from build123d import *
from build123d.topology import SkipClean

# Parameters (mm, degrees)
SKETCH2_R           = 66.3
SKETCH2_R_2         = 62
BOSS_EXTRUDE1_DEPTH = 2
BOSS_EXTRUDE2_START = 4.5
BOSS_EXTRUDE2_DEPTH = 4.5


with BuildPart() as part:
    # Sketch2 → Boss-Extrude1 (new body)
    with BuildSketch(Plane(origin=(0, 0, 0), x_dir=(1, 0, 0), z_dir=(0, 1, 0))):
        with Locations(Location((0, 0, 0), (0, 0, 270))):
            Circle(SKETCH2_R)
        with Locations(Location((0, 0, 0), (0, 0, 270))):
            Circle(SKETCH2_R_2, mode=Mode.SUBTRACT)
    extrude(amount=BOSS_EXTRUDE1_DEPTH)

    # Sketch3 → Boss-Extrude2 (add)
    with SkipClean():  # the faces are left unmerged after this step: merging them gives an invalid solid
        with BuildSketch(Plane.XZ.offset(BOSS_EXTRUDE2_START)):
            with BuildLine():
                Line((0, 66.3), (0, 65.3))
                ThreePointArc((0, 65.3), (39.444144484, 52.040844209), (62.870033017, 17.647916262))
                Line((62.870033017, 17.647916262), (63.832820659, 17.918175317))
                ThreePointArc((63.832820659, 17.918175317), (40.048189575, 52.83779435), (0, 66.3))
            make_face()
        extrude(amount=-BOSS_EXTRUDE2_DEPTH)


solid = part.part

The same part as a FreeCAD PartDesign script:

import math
import FreeCAD as App
import Part
import Sketcher
from FreeCAD import Vector
Q = App.Units.Quantity

doc = App.newDocument("Part")
body = doc.addObject("PartDesign::Body", "Body")

# Sketch on XZ plane
sketch1 = doc.addObject("Sketcher::SketchObject", "Sketch")
body.addObject(sketch1)
sketch1.AttachmentSupport = (doc.XZ_Plane, [""])
sketch1.MapMode = "FlatFace"
sketch1.addGeometry(Part.Circle(Vector(0, 0, 0), Vector(0, 0, 1), 66.3), False)
sketch1.addGeometry(Part.Circle(Vector(0, 0, 0), Vector(0, 0, 1), 62), False)
sketch1.addConstraint(Sketcher.Constraint("Coincident", 0, 3, -1, 1))
sketch1.addConstraint(Sketcher.Constraint("Coincident", 1, 3, -1, 1))
sketch1.addConstraint(Sketcher.Constraint("Diameter", 1, Q("124 mm")))
sketch1.addConstraint(Sketcher.Constraint("Diameter", 0, Q("132.6 mm")))
pad1 = doc.addObject("PartDesign::Pad", "Pad")
body.addObject(pad1)
pad1.Profile = sketch1
pad1.Length = 2
pad1.Reversed = True

# Sketch on XZ plane
sketch2 = doc.addObject("Sketcher::SketchObject", "Sketch001")
body.addObject(sketch2)
sketch2.AttachmentSupport = (doc.XZ_Plane, [""])
sketch2.MapMode = "FlatFace"
sketch2.AttachmentOffset = App.Placement(Vector(0, 0, 4.5), App.Rotation())
sketch2.addGeometry(Part.LineSegment(Vector(0, 66.3, 0), Vector(0, 65.3, 0)), False)
sketch2.addGeometry(Part.ArcOfCircle(Part.Circle(Vector(0, 0, 0), Vector(0, 0, 1), 65.3), math.radians(15.679683), math.radians(90)), False)
sketch2.addGeometry(Part.LineSegment(Vector(62.870033, 17.647916, 0), Vector(63.832821, 17.918175, 0)), False)
sketch2.addGeometry(Part.ArcOfCircle(Part.Circle(Vector(0, 0, 0), Vector(0, 0, 1), 66.3), math.radians(15.679683), math.radians(90)), False)
sketch2.addConstraint(Sketcher.Constraint("Coincident", 0, 2, 1, 2))
sketch2.addConstraint(Sketcher.Constraint("Coincident", 1, 1, 2, 1))
sketch2.addConstraint(Sketcher.Constraint("Coincident", 2, 2, 3, 1))
sketch2.addConstraint(Sketcher.Constraint("Coincident", 3, 2, 0, 1))
sketch2.addConstraint(Sketcher.Constraint("Vertical", 0))
sketch2.addConstraint(Sketcher.Constraint("Coincident", 1, 3, -1, 1))
sketch2.addConstraint(Sketcher.Constraint("Coincident", 3, 3, -1, 1))
sketch2.addConstraint(Sketcher.Constraint("PointOnObject", 0, 2, -2))
sketch2.addConstraint(Sketcher.Constraint("Radius", 1, Q("65.3 mm")))
sketch2.addConstraint(Sketcher.Constraint("Radius", 3, Q("66.3 mm")))
sketch2.addConstraint(Sketcher.Constraint("DistanceX", -1, 1, 2, 2, Q("63.832821 mm")))
sketch2.addConstraint(Sketcher.Constraint("DistanceY", 1, 1, 2, 2, Q("0.270259 mm")))
pad2 = doc.addObject("PartDesign::Pad", "Pad001")
body.addObject(pad2)
pad2.Profile = sketch2
pad2.Length = 4.5
pad2.Reversed = True

doc.recompute()
